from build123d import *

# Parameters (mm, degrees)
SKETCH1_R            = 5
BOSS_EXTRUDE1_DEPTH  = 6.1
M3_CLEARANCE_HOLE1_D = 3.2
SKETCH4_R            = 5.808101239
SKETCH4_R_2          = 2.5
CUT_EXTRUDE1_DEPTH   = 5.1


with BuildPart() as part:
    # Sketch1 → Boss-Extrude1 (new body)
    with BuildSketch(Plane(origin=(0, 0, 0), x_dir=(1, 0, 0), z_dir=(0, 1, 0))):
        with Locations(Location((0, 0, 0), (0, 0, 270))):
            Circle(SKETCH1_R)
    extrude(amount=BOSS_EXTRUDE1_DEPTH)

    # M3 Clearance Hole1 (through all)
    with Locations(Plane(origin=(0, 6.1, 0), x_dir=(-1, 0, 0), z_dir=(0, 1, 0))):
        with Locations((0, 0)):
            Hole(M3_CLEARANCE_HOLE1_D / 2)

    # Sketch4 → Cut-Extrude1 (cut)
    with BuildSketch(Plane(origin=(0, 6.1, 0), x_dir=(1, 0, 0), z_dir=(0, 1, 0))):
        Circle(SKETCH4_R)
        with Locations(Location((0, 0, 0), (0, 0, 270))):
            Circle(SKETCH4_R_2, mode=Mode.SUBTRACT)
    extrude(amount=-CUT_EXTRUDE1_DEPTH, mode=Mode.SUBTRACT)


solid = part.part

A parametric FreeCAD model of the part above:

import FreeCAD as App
import Part
import Sketcher

doc = App.newDocument("Part")
params = doc.addObject("Spreadsheet::Sheet", "Params")
for row, (alias, value) in enumerate([
    ("sketch1_diameter", "10 mm"),
    ("pad1_length", "6.1 mm"),
    ("sketch2_diameter", "3.2 mm"),
    ("hole_diameter", "3.2 mm"),
    ("sketch3_diameter", "5 mm"),
    ("pocket1_length", "5.1 mm"),
], start=1):
    params.set(f"A{row}", alias)
    params.set(f"B{row}", "=" + value)
    params.setAlias(f"B{row}", alias)

body = doc.addObject("PartDesign::Body", "Body")

# Sketch on XZ plane
sketch1 = body.newObject("Sketcher::SketchObject", "Sketch")
sketch1.AttachmentSupport = (doc.getObject("XZ_Plane"), [""])
sketch1.MapMode = "FlatFace"
sketch1.addGeometry(Part.Circle(App.Vector(0, 0, 0), App.Vector(0, 0, 1), 5), False)
sketch1.addConstraint(Sketcher.Constraint("Coincident", 0, 3, -1, 1))
sketch1.addConstraint(Sketcher.Constraint("Diameter", 0, 10.0))
sketch1.setExpression("Constraints[1]", "Params.sketch1_diameter")
pad1 = body.newObject("PartDesign::Pad", "Pad")
pad1.Profile = sketch1
pad1.setExpression("Length", "Params.pad1_length")
pad1.Reversed = True

# Sketch on XZ plane
sketch2 = body.newObject("Sketcher::SketchObject", "Sketch001")
sketch2.AttachmentSupport = (doc.getObject("XZ_Plane"), [""])
sketch2.MapMode = "FlatFace"
sketch2.AttachmentOffset = App.Placement(App.Vector(0, 0, -6.1), App.Rotation())
sketch2.addGeometry(Part.Circle(App.Vector(0, 0, 0), App.Vector(0, 0, 1), 1.6), False)
sketch2.addConstraint(Sketcher.Constraint("Coincident", 0, 3, -1, 1))
sketch2.addConstraint(Sketcher.Constraint("Diameter", 0, 3.2))
sketch2.setExpression("Constraints[1]", "Params.sketch2_diameter")
doc.recompute()
hole = body.newObject("PartDesign::Hole", "Hole")
hole.Profile = sketch2
hole.ThreadType = "None"
hole.setExpression("Diameter", "Params.hole_diameter")
hole.DepthType = "ThroughAll"
hole.Reversed = True

# Sketch on XZ plane
sketch3 = body.newObject("Sketcher::SketchObject", "Sketch002")
sketch3.AttachmentSupport = (doc.getObject("XZ_Plane"), [""])
sketch3.MapMode = "FlatFace"
sketch3.AttachmentOffset = App.Placement(App.Vector(0, 0, -6.1), App.Rotation())
sketch3.addGeometry(Part.Circle(App.Vector(0, 0, 0), App.Vector(0, 0, 1), 5.808101), False)
sketch3.addGeometry(Part.Circle(App.Vector(0, 0, 0), App.Vector(0, 0, 1), 2.5), False)
sketch3.addConstraint(Sketcher.Constraint("Coincident", 0, 3, -1, 1))
sketch3.addConstraint(Sketcher.Constraint("Coincident", 1, 3, -1, 1))
sketch3.addConstraint(Sketcher.Constraint("Diameter", 1, 5.0))
sketch3.addConstraint(Sketcher.Constraint("Diameter", 0, 11.616202))
sketch3.setExpression("Constraints[2]", "Params.sketch3_diameter")
pocket1 = body.newObject("PartDesign::Pocket", "Pocket")
pocket1.Profile = sketch3
pocket1.setExpression("Length", "Params.pocket1_length")
pocket1.Reversed = True

doc.recompute()
